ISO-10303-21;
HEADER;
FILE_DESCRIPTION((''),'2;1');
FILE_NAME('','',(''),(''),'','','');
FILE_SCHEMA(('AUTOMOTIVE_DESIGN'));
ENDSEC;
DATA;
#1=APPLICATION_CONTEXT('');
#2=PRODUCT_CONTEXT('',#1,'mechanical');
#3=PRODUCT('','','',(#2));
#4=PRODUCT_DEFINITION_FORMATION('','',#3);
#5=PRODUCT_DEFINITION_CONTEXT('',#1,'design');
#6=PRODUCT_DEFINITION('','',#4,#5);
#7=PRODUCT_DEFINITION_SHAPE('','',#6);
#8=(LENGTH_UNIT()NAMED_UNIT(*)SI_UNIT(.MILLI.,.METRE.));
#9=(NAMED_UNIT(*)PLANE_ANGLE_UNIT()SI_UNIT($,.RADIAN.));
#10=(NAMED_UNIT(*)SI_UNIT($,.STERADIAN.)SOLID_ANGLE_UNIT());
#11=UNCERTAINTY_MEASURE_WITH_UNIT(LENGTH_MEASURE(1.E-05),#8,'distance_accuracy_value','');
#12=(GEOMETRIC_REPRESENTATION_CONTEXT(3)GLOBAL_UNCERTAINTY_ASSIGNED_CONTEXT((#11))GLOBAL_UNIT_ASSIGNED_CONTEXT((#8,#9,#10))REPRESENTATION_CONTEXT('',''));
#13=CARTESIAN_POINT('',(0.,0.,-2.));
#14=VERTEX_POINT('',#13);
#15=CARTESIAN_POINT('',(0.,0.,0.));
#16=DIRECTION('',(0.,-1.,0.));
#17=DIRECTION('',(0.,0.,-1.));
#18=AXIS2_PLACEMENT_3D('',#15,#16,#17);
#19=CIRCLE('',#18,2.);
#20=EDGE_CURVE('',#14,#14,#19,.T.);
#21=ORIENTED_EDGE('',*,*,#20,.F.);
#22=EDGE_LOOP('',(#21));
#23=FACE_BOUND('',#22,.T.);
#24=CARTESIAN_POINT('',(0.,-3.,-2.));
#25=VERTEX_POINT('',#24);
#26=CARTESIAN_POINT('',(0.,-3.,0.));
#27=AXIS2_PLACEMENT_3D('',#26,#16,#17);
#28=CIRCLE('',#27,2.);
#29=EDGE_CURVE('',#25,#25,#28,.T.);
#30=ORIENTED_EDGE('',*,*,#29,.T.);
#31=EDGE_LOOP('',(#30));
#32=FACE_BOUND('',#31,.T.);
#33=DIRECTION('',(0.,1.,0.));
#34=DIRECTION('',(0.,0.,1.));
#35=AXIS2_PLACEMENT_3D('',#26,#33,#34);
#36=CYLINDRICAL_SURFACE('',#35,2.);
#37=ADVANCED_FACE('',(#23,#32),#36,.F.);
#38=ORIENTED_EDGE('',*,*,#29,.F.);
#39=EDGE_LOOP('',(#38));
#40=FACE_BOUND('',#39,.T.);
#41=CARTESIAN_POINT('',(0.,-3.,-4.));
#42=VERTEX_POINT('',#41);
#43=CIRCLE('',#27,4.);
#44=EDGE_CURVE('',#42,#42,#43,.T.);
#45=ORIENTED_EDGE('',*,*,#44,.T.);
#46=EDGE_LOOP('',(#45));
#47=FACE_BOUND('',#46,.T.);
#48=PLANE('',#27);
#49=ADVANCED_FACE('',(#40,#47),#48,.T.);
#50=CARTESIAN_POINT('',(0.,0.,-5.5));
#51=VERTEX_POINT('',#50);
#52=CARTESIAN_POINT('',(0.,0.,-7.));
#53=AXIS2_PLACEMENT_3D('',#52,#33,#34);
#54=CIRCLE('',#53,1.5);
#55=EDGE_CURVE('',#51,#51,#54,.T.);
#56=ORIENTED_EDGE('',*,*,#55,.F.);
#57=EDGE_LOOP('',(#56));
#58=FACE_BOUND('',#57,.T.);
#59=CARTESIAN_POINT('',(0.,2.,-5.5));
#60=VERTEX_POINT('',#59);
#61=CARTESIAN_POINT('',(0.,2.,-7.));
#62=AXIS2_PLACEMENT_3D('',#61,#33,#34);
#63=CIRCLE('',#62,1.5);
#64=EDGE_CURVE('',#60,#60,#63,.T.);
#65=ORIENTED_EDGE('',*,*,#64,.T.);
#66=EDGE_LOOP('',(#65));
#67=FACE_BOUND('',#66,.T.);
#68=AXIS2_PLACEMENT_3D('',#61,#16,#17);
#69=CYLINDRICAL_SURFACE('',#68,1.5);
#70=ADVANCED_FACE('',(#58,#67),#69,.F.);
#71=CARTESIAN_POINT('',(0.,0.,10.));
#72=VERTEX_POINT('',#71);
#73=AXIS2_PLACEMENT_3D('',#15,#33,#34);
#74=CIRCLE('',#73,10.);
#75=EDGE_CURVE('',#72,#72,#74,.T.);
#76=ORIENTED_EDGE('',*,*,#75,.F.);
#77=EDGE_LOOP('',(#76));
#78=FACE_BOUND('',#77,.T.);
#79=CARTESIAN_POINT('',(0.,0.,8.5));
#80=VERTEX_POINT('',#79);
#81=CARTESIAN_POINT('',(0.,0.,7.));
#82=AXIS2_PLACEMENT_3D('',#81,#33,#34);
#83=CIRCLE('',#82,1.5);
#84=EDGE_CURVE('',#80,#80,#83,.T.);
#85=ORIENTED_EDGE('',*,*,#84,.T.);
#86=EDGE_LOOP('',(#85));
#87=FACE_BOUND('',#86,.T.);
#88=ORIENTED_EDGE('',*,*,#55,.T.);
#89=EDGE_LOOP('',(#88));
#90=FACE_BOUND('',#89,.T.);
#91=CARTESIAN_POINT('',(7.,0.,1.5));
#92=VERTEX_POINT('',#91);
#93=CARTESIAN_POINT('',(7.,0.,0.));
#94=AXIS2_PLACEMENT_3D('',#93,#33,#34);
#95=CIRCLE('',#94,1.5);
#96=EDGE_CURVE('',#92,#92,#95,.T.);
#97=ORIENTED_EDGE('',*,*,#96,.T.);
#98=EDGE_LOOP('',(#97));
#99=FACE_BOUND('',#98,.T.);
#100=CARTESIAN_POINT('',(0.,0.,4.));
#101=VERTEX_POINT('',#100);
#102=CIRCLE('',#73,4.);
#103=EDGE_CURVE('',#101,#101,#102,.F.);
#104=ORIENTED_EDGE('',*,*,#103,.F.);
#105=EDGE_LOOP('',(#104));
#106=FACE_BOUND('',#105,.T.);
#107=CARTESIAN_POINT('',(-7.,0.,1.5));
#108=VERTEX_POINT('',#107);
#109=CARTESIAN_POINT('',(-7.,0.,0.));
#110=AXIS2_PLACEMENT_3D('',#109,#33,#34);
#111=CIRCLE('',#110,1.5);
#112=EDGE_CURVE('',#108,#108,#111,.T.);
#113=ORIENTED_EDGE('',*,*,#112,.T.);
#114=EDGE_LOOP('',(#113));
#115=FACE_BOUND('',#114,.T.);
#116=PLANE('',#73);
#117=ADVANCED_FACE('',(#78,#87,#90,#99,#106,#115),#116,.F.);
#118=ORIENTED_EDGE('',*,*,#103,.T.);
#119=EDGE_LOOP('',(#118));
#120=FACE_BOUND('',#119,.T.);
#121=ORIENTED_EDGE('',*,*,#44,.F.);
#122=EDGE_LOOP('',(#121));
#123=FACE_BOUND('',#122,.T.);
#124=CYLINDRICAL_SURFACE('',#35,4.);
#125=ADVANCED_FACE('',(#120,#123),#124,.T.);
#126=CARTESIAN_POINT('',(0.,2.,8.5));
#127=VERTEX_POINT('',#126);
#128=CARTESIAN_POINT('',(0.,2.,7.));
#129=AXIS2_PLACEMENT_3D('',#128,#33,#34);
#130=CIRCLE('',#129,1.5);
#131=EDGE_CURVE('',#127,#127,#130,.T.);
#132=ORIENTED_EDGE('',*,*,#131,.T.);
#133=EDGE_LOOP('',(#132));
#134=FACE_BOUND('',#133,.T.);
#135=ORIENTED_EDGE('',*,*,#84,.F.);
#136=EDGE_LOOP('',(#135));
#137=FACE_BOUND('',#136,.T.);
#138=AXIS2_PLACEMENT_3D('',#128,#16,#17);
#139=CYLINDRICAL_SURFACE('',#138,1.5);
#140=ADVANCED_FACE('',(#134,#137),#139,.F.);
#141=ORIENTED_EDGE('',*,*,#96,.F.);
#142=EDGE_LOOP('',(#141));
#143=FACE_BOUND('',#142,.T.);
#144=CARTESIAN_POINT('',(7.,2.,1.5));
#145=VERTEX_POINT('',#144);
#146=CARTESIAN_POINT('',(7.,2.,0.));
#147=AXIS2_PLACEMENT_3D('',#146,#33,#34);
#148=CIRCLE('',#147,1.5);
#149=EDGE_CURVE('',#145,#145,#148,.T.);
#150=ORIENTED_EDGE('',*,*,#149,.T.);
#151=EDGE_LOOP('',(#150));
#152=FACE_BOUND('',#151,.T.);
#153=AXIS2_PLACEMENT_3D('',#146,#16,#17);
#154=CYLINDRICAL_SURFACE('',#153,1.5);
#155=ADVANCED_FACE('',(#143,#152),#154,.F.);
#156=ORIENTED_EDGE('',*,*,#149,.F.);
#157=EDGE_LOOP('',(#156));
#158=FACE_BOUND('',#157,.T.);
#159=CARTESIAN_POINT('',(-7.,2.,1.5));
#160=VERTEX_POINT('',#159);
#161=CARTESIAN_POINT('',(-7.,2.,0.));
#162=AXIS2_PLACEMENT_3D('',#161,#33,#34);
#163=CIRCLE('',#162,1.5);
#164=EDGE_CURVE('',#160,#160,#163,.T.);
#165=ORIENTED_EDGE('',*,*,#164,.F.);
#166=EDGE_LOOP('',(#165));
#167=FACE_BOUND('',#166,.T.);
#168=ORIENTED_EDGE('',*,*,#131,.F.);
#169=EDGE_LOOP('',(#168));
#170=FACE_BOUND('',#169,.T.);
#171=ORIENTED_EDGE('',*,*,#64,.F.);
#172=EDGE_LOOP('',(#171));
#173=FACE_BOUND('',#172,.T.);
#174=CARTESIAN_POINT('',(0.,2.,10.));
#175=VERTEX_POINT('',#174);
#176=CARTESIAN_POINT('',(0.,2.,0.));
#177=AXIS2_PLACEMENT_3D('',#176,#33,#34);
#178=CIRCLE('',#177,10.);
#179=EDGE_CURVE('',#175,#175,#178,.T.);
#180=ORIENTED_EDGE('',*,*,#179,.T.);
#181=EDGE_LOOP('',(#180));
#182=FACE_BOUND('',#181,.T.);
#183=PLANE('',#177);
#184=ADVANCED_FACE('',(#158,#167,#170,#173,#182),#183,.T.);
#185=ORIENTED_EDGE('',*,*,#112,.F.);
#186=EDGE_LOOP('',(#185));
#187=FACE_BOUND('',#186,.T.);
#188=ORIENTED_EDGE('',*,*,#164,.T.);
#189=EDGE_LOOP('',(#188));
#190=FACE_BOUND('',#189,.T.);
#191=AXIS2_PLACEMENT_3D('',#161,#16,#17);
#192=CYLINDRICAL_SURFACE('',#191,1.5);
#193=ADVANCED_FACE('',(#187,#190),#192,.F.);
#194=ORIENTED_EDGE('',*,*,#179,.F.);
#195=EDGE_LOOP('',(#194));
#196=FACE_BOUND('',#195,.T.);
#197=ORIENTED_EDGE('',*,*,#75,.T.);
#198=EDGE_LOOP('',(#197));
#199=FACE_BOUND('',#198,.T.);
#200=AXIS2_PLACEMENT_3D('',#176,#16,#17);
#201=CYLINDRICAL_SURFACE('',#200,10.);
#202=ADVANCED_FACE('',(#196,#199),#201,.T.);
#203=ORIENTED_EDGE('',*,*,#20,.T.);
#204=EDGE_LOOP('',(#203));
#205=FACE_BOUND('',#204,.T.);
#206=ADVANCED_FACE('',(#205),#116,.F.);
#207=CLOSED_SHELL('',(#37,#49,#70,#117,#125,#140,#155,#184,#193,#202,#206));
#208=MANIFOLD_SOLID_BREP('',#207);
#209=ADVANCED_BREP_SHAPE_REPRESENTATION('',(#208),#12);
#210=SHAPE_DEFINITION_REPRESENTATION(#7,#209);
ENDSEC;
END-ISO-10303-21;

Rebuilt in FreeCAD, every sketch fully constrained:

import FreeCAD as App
import Part
import Sketcher

V = App.Vector

doc = App.newDocument("Part")
body = doc.addObject("PartDesign::Body", "Body")

sketch1 = doc.addObject("Sketcher::SketchObject", "Sketch")
body.addObject(sketch1)
sketch1.AttachmentSupport = (doc.XZ_Plane, [""])
sketch1.MapMode = "FlatFace"
sketch1.addGeometry(Part.Circle(V(0, 0, 0), V(0, 0, 1), 10), False)
sketch1.addGeometry(Part.Circle(V(0, 7, 0), V(0, 0, 1), 1.5), False)
sketch1.addGeometry(Part.Circle(V(-7, 0, 0), V(0, 0, 1), 1.5), False)
sketch1.addGeometry(Part.Circle(V(7, 0, 0), V(0, 0, 1), 1.5), False)
sketch1.addGeometry(Part.Circle(V(0, -7, 0), V(0, 0, 1), 1.5), False)
sketch1.addConstraint(Sketcher.Constraint("Coincident", 0, 3, -1, 1))
sketch1.addConstraint(Sketcher.Constraint("Equal", 1, 2))
sketch1.addConstraint(Sketcher.Constraint("Equal", 2, 3))
sketch1.addConstraint(Sketcher.Constraint("Equal", 3, 4))
sketch1.addConstraint(Sketcher.Constraint("Symmetric", 2, 3, 3, 3, -1, 1))
sketch1.addConstraint(Sketcher.Constraint("Symmetric", 1, 3, 4, 3, -1, 1))
sketch1.addConstraint(Sketcher.Constraint("PointOnObject", 1, 3, -2))
sketch1.addConstraint(Sketcher.Constraint("PointOnObject", 2, 3, -1))
sketch1.addConstraint(Sketcher.Constraint("Diameter", 0, 20.0))
sketch1.addConstraint(Sketcher.Constraint("Diameter", 1, 3.0))
sketch1.addConstraint(Sketcher.Constraint("DistanceY", -1, 1, 1, 3, 7.0))
sketch1.addConstraint(Sketcher.Constraint("DistanceX", 2, 3, -1, 1, 7.0))
pad1 = doc.addObject("PartDesign::Pad", "Pad")
body.addObject(pad1)
pad1.Profile = sketch1
pad1.Length = 2
pad1.Reversed = True

sketch2 = doc.addObject("Sketcher::SketchObject", "Sketch001")
body.addObject(sketch2)
sketch2.AttachmentSupport = (doc.XZ_Plane, [""])
sketch2.MapMode = "FlatFace"
sketch2.addGeometry(Part.Circle(V(0, 0, 0), V(0, 0, 1), 4), False)
sketch2.addGeometry(Part.Circle(V(0, 0, 0), V(0, 0, 1), 2), False)
sketch2.addConstraint(Sketcher.Constraint("Coincident", 0, 3, -1, 1))
sketch2.addConstraint(Sketcher.Constraint("Coincident", 1, 3, -1, 1))
sketch2.addConstraint(Sketcher.Constraint("Diameter", 0, 8.0))
sketch2.addConstraint(Sketcher.Constraint("Diameter", 1, 4.0))
pad2 = doc.addObject("PartDesign::Pad", "Pad001")
body.addObject(pad2)
pad2.Profile = sketch2
pad2.Length = 3

doc.recompute()
